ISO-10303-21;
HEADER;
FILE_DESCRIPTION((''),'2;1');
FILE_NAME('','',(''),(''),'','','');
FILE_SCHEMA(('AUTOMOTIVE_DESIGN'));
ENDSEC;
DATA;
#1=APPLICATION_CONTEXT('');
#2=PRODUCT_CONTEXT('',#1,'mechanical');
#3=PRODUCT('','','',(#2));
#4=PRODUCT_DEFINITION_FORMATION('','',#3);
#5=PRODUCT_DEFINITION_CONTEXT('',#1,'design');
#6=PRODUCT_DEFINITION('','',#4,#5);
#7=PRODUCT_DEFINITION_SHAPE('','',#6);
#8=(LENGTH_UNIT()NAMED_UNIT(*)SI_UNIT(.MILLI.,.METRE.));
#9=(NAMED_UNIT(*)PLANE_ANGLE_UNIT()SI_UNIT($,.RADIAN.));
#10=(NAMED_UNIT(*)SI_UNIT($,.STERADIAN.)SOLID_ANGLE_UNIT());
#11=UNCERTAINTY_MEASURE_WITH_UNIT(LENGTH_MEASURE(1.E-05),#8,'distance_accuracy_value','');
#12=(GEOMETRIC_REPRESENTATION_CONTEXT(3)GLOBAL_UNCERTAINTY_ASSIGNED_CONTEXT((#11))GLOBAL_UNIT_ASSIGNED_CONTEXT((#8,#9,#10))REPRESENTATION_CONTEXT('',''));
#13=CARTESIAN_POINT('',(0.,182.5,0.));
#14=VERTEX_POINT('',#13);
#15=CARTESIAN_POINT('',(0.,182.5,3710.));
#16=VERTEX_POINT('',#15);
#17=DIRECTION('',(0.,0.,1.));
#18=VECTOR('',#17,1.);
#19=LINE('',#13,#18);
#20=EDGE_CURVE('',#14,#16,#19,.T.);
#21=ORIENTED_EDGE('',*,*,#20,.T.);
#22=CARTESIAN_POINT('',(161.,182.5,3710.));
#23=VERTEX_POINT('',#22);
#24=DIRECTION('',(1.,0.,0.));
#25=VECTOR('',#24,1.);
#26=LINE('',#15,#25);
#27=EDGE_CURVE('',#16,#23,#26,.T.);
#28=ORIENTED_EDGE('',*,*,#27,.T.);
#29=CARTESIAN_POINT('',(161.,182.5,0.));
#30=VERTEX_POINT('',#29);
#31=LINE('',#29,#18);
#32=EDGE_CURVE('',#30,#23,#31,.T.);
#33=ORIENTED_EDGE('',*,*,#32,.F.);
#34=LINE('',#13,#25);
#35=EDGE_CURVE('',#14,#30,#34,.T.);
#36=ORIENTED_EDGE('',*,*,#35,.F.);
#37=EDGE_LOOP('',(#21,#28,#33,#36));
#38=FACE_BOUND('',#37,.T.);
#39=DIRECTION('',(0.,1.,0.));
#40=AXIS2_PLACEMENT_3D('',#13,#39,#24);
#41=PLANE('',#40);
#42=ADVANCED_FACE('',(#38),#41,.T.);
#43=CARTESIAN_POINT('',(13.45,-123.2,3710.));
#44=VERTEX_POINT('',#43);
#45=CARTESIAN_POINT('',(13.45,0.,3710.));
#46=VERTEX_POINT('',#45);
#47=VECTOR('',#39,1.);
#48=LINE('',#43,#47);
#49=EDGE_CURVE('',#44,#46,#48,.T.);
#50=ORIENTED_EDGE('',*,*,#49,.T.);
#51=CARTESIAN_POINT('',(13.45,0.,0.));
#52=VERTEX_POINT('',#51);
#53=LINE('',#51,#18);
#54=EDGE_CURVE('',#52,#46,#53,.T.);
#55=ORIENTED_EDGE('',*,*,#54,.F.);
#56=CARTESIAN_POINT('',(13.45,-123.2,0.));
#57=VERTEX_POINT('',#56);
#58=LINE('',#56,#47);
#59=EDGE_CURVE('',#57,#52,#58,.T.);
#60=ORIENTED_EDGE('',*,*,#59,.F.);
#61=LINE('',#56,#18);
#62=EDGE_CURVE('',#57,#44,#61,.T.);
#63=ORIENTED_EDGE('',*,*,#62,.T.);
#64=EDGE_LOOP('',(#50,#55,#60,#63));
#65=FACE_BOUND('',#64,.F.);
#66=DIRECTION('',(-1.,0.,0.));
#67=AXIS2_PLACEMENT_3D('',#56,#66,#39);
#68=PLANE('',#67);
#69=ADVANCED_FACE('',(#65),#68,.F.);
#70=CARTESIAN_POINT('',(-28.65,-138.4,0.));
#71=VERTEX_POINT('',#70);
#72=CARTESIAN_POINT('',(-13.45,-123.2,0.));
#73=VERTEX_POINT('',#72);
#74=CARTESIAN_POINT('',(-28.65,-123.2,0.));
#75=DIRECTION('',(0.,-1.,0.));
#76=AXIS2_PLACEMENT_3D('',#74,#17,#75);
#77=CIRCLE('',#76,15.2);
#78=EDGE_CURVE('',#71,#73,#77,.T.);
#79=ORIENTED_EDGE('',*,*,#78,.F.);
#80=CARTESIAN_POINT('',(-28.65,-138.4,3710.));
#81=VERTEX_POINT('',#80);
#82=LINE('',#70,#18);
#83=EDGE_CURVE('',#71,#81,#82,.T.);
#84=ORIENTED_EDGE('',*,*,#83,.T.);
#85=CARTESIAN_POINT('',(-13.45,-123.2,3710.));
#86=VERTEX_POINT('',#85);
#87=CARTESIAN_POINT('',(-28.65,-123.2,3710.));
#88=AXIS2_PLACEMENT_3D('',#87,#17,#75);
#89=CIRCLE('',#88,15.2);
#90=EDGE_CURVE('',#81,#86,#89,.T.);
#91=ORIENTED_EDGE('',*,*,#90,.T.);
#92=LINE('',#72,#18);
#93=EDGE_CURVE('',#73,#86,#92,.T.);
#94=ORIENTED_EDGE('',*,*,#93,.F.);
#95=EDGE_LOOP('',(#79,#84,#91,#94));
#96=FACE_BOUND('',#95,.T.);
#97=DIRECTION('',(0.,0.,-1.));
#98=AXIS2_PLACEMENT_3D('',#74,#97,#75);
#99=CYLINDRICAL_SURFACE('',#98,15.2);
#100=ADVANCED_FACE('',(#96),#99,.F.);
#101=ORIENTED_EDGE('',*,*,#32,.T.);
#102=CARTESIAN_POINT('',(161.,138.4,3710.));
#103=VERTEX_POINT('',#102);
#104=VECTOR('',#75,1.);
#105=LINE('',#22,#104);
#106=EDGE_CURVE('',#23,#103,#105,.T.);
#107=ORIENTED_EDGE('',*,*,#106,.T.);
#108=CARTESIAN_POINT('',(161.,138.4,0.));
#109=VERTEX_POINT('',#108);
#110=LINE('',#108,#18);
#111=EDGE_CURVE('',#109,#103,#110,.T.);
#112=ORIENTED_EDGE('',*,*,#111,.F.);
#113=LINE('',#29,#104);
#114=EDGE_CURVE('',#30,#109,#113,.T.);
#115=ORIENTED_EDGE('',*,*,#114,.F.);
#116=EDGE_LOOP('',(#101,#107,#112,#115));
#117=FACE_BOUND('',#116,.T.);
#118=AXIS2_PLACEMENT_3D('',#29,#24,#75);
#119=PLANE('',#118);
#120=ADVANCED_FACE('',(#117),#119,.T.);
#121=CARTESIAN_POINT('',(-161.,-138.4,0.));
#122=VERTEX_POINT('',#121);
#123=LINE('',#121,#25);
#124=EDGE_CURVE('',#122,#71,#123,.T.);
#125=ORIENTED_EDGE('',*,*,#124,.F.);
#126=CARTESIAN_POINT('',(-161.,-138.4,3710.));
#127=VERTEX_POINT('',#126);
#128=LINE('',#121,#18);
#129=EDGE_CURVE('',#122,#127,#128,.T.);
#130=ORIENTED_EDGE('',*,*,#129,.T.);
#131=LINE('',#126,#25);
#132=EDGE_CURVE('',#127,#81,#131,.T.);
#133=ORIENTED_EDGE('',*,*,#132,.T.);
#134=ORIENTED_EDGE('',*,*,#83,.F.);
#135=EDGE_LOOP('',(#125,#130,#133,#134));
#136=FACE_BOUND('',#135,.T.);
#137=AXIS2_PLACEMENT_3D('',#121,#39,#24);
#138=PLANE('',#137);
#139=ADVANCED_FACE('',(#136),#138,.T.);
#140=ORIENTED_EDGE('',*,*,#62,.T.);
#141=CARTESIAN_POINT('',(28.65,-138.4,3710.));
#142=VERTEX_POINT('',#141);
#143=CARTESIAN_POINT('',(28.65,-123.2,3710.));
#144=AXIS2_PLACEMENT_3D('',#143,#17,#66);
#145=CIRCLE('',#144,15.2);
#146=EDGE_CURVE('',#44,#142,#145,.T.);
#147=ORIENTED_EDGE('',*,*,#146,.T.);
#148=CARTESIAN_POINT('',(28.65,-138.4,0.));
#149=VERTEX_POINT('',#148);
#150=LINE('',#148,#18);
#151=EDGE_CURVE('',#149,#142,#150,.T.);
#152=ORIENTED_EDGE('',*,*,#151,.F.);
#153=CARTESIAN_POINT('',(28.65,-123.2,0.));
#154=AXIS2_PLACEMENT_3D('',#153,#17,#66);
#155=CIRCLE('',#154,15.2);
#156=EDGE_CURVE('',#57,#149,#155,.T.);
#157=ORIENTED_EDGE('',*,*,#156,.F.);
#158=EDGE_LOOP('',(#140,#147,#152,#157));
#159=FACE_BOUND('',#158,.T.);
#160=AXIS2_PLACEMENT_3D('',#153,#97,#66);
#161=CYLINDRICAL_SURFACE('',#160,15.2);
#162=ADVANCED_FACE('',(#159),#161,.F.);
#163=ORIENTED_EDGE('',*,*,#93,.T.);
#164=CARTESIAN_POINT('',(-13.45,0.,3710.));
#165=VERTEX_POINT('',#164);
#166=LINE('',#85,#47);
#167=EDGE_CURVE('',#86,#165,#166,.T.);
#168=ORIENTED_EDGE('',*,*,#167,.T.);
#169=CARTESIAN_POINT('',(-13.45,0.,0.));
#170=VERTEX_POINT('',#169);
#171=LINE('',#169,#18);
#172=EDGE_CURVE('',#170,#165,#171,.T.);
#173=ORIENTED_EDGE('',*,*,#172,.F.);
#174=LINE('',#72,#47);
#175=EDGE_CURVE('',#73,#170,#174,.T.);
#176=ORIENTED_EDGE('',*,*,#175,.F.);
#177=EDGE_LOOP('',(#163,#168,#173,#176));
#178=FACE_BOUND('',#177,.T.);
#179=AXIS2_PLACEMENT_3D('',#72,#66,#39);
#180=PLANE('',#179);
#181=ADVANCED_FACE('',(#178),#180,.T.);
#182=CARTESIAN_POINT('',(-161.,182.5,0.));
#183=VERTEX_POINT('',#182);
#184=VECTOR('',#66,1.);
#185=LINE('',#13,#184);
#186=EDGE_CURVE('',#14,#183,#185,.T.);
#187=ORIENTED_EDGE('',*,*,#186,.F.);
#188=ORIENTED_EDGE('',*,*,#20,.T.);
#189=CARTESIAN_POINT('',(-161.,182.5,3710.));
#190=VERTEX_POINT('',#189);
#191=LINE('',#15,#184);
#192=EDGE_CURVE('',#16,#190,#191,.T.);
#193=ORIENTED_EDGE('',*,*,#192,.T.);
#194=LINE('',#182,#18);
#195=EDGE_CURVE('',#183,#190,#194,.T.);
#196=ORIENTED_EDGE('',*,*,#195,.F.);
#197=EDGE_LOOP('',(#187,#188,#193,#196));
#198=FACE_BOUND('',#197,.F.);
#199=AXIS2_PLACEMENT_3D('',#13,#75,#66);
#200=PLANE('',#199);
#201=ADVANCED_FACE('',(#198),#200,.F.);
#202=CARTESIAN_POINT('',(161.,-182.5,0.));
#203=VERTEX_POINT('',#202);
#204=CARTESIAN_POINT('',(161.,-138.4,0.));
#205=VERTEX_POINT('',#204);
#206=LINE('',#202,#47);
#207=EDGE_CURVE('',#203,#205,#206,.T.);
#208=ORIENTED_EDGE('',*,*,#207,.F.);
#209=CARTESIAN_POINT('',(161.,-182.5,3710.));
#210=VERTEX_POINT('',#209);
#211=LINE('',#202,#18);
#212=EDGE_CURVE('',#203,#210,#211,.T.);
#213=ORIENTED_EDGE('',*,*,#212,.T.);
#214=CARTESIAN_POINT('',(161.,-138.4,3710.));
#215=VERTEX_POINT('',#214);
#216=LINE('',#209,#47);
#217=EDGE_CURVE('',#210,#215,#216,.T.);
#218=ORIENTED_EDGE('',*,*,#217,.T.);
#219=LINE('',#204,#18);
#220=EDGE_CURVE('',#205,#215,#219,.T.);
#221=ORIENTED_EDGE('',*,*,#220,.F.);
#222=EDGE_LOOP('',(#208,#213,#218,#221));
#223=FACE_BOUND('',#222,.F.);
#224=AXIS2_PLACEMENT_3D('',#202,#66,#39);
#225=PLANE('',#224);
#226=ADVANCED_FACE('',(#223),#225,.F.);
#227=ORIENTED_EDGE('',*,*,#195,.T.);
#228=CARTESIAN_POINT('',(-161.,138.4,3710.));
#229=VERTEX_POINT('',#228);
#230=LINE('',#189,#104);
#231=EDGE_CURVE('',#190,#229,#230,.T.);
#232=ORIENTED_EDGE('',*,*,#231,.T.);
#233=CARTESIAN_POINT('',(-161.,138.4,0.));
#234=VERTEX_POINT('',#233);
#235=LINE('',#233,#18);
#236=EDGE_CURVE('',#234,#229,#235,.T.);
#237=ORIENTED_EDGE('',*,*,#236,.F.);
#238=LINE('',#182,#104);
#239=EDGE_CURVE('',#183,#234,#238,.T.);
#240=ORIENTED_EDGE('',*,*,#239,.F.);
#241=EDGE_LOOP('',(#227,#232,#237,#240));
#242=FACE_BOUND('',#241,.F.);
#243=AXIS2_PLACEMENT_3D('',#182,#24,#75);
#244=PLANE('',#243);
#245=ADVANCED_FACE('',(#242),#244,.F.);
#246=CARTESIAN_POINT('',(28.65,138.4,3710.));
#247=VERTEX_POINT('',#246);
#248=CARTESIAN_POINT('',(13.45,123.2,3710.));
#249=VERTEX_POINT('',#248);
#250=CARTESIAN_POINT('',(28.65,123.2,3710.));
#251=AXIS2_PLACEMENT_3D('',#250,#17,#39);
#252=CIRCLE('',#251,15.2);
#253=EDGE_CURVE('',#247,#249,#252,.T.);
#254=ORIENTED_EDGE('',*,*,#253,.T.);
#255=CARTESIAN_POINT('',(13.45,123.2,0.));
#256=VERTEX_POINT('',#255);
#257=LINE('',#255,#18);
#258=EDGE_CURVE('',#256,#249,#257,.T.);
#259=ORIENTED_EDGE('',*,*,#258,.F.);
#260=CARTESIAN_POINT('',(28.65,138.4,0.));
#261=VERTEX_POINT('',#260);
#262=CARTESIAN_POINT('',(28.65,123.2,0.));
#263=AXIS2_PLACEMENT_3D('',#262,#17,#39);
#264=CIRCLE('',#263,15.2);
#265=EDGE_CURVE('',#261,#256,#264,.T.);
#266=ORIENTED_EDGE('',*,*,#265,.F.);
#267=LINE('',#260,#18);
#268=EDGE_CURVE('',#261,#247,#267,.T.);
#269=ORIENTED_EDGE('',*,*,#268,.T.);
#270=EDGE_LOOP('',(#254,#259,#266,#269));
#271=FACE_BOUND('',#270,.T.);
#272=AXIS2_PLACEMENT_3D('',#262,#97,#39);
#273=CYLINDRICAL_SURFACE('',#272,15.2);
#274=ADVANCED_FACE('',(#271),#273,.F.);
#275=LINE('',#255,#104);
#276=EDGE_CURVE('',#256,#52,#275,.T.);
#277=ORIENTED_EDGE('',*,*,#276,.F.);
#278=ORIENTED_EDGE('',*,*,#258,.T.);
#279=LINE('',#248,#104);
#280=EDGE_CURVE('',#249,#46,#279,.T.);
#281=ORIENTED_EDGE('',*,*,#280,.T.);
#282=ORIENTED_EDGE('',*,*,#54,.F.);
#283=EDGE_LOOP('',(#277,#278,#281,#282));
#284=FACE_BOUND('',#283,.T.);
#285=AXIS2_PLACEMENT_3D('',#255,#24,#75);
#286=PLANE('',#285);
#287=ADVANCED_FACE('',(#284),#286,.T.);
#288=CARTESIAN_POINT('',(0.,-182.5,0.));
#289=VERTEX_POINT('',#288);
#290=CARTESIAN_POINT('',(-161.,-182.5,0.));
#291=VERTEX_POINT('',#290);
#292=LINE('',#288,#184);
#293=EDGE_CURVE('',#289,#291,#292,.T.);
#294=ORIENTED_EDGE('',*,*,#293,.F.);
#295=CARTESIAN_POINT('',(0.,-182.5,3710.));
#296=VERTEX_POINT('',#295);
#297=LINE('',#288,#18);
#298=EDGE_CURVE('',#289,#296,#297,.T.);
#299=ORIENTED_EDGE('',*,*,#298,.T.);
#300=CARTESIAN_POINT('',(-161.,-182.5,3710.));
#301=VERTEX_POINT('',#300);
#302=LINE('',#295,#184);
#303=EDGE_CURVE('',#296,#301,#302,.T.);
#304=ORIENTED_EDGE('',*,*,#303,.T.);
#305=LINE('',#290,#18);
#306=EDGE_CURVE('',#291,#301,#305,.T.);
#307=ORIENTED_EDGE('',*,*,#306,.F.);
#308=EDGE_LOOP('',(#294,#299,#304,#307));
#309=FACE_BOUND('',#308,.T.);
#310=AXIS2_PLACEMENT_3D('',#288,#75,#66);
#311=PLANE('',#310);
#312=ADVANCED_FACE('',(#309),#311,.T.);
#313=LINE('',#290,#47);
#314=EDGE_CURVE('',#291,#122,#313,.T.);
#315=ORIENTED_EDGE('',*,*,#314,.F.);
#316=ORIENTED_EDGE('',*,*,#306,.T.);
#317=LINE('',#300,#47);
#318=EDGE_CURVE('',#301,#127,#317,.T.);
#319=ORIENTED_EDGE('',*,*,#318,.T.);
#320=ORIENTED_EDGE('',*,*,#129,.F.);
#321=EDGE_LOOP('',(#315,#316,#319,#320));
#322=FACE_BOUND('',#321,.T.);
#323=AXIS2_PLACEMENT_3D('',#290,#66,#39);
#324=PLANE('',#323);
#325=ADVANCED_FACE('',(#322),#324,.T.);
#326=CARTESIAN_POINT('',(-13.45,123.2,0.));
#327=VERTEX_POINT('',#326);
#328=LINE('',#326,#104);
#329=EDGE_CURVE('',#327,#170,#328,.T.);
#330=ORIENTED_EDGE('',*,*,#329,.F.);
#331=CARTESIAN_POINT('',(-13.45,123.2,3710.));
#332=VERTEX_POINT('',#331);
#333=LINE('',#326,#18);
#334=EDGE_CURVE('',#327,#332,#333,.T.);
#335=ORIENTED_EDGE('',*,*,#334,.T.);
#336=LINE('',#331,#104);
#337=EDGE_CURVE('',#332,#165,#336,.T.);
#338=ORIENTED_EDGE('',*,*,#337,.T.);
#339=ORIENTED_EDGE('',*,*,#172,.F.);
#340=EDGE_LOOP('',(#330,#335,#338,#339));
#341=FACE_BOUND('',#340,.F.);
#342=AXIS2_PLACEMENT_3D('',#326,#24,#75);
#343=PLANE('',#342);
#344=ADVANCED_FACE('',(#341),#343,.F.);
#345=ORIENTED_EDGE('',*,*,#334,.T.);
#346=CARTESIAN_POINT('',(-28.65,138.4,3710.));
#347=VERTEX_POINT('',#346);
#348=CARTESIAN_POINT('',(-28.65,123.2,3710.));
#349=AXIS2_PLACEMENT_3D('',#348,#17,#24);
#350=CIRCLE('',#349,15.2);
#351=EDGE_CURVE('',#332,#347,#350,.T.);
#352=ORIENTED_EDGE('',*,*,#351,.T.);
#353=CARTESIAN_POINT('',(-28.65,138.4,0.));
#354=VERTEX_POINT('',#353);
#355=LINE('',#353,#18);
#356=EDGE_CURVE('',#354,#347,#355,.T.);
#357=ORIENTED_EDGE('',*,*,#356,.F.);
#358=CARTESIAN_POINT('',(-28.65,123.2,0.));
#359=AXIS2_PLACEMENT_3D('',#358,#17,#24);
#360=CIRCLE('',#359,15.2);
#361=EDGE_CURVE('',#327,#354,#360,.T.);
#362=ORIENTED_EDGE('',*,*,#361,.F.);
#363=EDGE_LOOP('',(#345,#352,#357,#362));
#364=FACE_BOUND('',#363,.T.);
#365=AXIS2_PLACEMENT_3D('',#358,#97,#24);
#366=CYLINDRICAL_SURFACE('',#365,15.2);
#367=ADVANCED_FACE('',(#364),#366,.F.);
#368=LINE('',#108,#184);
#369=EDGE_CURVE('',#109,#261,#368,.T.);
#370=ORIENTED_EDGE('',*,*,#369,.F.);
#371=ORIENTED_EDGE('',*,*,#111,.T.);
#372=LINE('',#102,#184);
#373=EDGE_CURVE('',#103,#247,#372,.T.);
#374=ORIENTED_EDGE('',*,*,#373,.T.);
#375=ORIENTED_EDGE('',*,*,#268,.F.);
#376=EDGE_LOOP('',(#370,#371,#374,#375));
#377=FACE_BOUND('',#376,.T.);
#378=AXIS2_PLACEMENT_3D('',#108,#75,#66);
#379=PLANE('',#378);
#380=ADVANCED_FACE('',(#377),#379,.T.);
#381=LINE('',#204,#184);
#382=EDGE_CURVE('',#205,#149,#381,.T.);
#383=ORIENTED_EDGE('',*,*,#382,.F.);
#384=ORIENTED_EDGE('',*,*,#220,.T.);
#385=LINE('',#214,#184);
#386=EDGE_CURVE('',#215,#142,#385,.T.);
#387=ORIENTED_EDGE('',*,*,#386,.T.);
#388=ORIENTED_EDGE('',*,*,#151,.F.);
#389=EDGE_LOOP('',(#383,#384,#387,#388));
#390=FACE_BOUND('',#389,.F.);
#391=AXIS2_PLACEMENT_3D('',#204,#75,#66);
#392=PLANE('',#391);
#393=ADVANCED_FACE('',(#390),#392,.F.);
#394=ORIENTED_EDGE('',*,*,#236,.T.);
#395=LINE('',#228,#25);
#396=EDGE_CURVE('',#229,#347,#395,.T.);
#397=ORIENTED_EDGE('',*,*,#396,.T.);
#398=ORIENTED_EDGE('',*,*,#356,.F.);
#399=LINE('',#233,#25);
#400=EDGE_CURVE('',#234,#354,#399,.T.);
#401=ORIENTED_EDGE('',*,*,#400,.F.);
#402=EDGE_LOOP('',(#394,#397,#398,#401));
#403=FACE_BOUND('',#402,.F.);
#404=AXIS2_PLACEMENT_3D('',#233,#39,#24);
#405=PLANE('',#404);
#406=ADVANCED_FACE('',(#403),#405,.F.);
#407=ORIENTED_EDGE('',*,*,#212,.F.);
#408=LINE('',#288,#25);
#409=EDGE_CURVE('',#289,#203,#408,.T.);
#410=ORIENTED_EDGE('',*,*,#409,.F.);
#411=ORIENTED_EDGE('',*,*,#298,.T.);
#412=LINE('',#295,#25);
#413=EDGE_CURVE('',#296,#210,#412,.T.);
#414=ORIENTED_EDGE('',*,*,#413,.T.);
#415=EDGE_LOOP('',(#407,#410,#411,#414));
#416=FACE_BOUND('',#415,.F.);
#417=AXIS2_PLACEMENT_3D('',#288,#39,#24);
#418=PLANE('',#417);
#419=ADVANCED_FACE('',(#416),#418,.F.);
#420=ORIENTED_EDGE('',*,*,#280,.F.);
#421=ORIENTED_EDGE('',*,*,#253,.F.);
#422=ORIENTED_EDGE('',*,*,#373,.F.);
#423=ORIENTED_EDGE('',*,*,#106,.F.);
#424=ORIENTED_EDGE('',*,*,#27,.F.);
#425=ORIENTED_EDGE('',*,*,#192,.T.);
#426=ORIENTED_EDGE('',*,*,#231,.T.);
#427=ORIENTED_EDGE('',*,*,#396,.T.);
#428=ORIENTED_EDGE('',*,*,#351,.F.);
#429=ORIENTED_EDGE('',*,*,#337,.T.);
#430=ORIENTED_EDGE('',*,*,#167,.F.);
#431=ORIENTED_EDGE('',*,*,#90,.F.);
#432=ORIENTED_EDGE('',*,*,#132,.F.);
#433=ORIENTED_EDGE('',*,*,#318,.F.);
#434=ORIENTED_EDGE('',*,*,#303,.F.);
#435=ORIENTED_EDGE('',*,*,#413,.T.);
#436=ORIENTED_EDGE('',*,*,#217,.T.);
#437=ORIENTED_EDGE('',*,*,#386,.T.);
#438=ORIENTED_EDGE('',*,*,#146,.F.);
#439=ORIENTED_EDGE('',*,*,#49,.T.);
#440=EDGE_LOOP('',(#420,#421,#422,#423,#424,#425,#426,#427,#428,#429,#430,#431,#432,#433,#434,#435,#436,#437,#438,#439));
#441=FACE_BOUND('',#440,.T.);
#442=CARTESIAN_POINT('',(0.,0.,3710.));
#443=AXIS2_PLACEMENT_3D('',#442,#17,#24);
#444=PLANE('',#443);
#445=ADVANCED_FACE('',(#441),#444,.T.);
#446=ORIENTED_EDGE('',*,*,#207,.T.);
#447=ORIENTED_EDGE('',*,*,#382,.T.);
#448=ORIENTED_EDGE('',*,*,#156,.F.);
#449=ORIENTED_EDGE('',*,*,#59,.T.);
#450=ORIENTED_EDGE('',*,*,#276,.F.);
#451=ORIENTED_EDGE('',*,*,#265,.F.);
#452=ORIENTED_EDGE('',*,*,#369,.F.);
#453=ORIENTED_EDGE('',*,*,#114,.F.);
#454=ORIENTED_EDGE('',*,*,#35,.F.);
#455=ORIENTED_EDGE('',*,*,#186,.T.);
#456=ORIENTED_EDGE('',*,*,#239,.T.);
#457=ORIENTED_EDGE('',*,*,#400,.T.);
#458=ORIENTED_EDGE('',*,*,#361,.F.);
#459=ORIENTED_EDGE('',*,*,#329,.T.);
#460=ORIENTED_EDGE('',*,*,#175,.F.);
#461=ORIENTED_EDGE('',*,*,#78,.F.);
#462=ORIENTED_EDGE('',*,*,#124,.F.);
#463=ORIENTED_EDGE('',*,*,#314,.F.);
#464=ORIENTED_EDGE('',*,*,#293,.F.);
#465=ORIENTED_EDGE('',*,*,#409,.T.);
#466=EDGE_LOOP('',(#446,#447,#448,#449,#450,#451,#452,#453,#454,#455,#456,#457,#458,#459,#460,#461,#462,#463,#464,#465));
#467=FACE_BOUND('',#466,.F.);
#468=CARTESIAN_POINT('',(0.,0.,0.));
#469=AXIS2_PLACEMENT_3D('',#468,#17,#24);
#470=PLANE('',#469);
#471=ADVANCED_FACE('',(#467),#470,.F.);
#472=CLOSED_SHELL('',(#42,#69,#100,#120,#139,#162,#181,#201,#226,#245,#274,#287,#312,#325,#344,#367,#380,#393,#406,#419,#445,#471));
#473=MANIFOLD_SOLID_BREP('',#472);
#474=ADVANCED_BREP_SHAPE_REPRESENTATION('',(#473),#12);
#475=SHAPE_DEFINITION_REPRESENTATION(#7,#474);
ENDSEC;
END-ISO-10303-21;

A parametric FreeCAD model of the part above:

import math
import FreeCAD as App
import Part
import Sketcher
Q = App.Units.Quantity

doc = App.newDocument("Part")
params = doc.addObject("Spreadsheet::Sheet", "Params")
for row, (alias, value) in enumerate([
    ("sketch1_radius", "15.2 mm"),
    ("sketch1_height", "44.1 mm"),
    ("pad1_length", "3710 mm"),
], start=1):
    params.set(f"A{row}", alias)
    params.set(f"B{row}", "=" + value)
    params.setAlias(f"B{row}", alias)

body = doc.addObject("PartDesign::Body", "Body")

sketch1 = body.newObject("Sketcher::SketchObject", "Sketch")
sketch1.AttachmentSupport = (doc.getObject("XY_Plane"), [""])
sketch1.MapMode = "FlatFace"
sketch1.addGeometry([
    Part.LineSegment(App.Vector(-161, -138, 0), App.Vector(-161, -182, 0)),
    Part.LineSegment(App.Vector(-161, -182, 0), App.Vector(161, -182, 0)),
    Part.LineSegment(App.Vector(161, -182, 0), App.Vector(161, -138, 0)),
    Part.LineSegment(App.Vector(161, -138, 0), App.Vector(29, -138, 0)),
    Part.ArcOfCircle(Part.Circle(App.Vector(29, -123, 0), App.Vector(0, 0, 1), 15), math.radians(180), math.radians(270)),
    Part.LineSegment(App.Vector(13, -123, 0), App.Vector(13, 123, 0)),
    Part.ArcOfCircle(Part.Circle(App.Vector(29, 123, 0), App.Vector(0, 0, 1), 15), math.radians(90), math.radians(180)),
    Part.LineSegment(App.Vector(29, 138, 0), App.Vector(161, 138, 0)),
    Part.LineSegment(App.Vector(161, 138, 0), App.Vector(161, 182, 0)),
    Part.LineSegment(App.Vector(161, 182, 0), App.Vector(-161, 182, 0)),
    Part.LineSegment(App.Vector(-161, 182, 0), App.Vector(-161, 138, 0)),
    Part.LineSegment(App.Vector(-161, 138, 0), App.Vector(-29, 138, 0)),
    Part.ArcOfCircle(Part.Circle(App.Vector(-29, 123, 0), App.Vector(0, 0, 1), 15), math.radians(0), math.radians(90)),
    Part.LineSegment(App.Vector(-13, 123, 0), App.Vector(-13, -123, 0)),
    Part.ArcOfCircle(Part.Circle(App.Vector(-29, -123, 0), App.Vector(0, 0, 1), 15), math.radians(-90), math.radians(0)),
    Part.LineSegment(App.Vector(-29, -138, 0), App.Vector(-161, -138, 0)),
], False)
sketch1.addConstraint([
    Sketcher.Constraint("Coincident", 0, 2, 1, 1),
    Sketcher.Constraint("Coincident", 1, 2, 2, 1),
    Sketcher.Constraint("Coincident", 2, 2, 3, 1),
    Sketcher.Constraint("Tangent", 3, 2, 4, 2),
    Sketcher.Constraint("Tangent", 4, 1, 5, 1),
    Sketcher.Constraint("Tangent", 5, 2, 6, 2),
    Sketcher.Constraint("Tangent", 6, 1, 7, 1),
    Sketcher.Constraint("Coincident", 7, 2, 8, 1),
    Sketcher.Constraint("Coincident", 8, 2, 9, 1),
    Sketcher.Constraint("Coincident", 9, 2, 10, 1),
    Sketcher.Constraint("Coincident", 10, 2, 11, 1),
    Sketcher.Constraint("Tangent", 11, 2, 12, 2),
    Sketcher.Constraint("Tangent", 12, 1, 13, 1),
    Sketcher.Constraint("Tangent", 13, 2, 14, 2),
    Sketcher.Constraint("Tangent", 14, 1, 15, 1),
    Sketcher.Constraint("Coincident", 15, 2, 0, 1),
    Sketcher.Constraint("Vertical", 0),
    Sketcher.Constraint("Horizontal", 1),
    Sketcher.Constraint("Vertical", 2),
    Sketcher.Constraint("Horizontal", 3),
    Sketcher.Constraint("Vertical", 5),
    Sketcher.Constraint("Horizontal", 7),
    Sketcher.Constraint("Vertical", 8),
    Sketcher.Constraint("Horizontal", 9),
    Sketcher.Constraint("Vertical", 10),
    Sketcher.Constraint("Horizontal", 11),
    Sketcher.Constraint("Vertical", 13),
    Sketcher.Constraint("Horizontal", 15),
    Sketcher.Constraint("Equal", 4, 6),
    Sketcher.Constraint("Equal", 6, 12),
    Sketcher.Constraint("Equal", 12, 14),
    Sketcher.Constraint("Symmetric", 4, 3, 12, 3, -1, 1),
    Sketcher.Constraint("Symmetric", 0, 2, 8, 2, -1, 1),
    Sketcher.Constraint("Symmetric", 7, 2, 10, 2, -2),
    Sketcher.Constraint("Symmetric", 2, 2, 15, 2, -2),
    Sketcher.Constraint("Radius", 4, Q("15.2 mm")),
    Sketcher.Constraint("DistanceY", 0, 2, 0, 1, Q("44.1 mm")),
    Sketcher.Constraint("DistanceX", 0, 2, -1, 1, Q("161 mm")),
    Sketcher.Constraint("DistanceY", 0, 2, -1, 1, Q("182.5 mm")),
    Sketcher.Constraint("DistanceX", -1, 1, 4, 1, Q("13.45 mm")),
])
sketch1.setExpression("Constraints[35]", "Params.sketch1_radius")
sketch1.setExpression("Constraints[36]", "Params.sketch1_height")
pad1 = body.newObject("PartDesign::Pad", "Pad")
pad1.Profile = sketch1
pad1.setExpression("Length", "Params.pad1_length")

doc.recompute()
